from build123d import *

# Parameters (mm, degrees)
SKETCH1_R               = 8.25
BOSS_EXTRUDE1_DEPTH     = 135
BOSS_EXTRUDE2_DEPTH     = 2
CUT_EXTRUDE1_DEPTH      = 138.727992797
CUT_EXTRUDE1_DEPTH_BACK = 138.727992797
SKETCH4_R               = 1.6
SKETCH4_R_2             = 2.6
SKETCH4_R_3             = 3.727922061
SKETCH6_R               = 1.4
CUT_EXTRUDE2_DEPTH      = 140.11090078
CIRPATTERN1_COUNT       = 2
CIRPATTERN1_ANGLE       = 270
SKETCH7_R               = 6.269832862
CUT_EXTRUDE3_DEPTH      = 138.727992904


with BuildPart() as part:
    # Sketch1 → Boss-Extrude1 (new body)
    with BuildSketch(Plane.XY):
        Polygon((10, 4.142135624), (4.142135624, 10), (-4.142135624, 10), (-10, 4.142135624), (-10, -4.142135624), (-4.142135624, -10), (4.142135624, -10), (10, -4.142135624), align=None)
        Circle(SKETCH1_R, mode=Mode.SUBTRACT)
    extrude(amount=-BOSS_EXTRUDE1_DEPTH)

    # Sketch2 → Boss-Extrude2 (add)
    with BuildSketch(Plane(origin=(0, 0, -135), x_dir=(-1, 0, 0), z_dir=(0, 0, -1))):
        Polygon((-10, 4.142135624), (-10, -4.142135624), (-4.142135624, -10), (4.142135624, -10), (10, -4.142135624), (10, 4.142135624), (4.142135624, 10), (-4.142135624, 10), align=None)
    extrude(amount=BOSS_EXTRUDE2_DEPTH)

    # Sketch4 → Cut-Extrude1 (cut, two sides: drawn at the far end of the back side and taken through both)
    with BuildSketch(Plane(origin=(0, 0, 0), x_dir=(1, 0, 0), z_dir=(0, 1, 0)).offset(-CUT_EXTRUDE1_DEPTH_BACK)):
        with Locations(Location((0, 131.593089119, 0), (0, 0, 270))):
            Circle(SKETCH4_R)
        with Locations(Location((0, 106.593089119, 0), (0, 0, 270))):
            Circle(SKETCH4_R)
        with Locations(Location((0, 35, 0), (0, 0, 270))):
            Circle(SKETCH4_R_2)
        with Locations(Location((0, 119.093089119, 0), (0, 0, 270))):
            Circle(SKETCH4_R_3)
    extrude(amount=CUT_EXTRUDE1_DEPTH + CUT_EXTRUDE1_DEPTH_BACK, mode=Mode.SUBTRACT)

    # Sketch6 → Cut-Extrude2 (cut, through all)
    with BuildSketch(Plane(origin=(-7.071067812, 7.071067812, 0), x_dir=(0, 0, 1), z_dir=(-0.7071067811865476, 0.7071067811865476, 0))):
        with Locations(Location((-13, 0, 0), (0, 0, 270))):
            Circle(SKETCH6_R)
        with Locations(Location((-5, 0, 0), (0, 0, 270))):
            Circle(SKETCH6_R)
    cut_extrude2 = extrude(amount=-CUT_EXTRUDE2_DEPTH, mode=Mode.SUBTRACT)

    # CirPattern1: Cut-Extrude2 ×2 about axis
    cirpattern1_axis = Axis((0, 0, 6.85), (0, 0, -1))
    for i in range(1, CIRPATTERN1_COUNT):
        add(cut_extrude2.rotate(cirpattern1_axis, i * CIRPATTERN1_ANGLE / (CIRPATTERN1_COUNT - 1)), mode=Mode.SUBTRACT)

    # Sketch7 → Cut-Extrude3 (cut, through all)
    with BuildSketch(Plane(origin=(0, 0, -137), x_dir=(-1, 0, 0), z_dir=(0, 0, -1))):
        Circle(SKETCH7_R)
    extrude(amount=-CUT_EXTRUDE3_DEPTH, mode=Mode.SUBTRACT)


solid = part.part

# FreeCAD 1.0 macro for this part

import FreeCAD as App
import Part
import Sketcher

doc = App.newDocument("Part")
params = doc.addObject("Spreadsheet::Sheet", "Params")
for row, (alias, value) in enumerate([
    ("sketch1_diameter", "16.5 mm"),
    ("pad1_length", "135 mm"),
    ("pad2_length", "2 mm"),
    ("sketch3_diameter", "3.2 mm"),
    ("sketch3_diameter2", "5.2 mm"),
    ("sketch4_diameter", "2.8 mm"),
], start=1):
    params.set(f"A{row}", alias)
    params.set(f"B{row}", "=" + value)
    params.setAlias(f"B{row}", alias)

body = doc.addObject("PartDesign::Body", "Body")

sketch1 = body.newObject("Sketcher::SketchObject", "Sketch")
sketch1.AttachmentSupport = (doc.getObject("XY_Plane"), [""])
sketch1.MapMode = "FlatFace"
sketch1.addGeometry([
    Part.LineSegment(App.Vector(10, 4, 0), App.Vector(4, 10, 0)),
    Part.LineSegment(App.Vector(4, 10, 0), App.Vector(-4, 10, 0)),
    Part.LineSegment(App.Vector(-4, 10, 0), App.Vector(-10, 4, 0)),
    Part.LineSegment(App.Vector(-10, 4, 0), App.Vector(-10, -4, 0)),
    Part.LineSegment(App.Vector(-10, -4, 0), App.Vector(-4, -10, 0)),
    Part.LineSegment(App.Vector(-4, -10, 0), App.Vector(4, -10, 0)),
    Part.LineSegment(App.Vector(4, -10, 0), App.Vector(10, -4, 0)),
    Part.LineSegment(App.Vector(10, -4, 0), App.Vector(10, 4, 0)),
    Part.Circle(App.Vector(0, 0, 0), App.Vector(0, 0, 1), 8),
], False)
sketch1.addConstraint([
    Sketcher.Constraint("Coincident", 0, 2, 1, 1),
    Sketcher.Constraint("Coincident", 1, 2, 2, 1),
    Sketcher.Constraint("Coincident", 2, 2, 3, 1),
    Sketcher.Constraint("Coincident", 3, 2, 4, 1),
    Sketcher.Constraint("Coincident", 4, 2, 5, 1),
    Sketcher.Constraint("Coincident", 5, 2, 6, 1),
    Sketcher.Constraint("Coincident", 6, 2, 7, 1),
    Sketcher.Constraint("Coincident", 7, 2, 0, 1),
    Sketcher.Constraint("Horizontal", 1),
    Sketcher.Constraint("Vertical", 3),
    Sketcher.Constraint("Horizontal", 5),
    Sketcher.Constraint("Vertical", 7),
    Sketcher.Constraint("Coincident", 8, 3, -1, 1),
    Sketcher.Constraint("Symmetric", 0, 2, 4, 2, -1, 1),
    Sketcher.Constraint("Symmetric", 2, 2, 6, 2, -1, 1),
    Sketcher.Constraint("Perpendicular", 0, 2),
    Sketcher.Constraint("Perpendicular", 2, 4),
    Sketcher.Constraint("Perpendicular", 4, 6),
    Sketcher.Constraint("Horizontal", 3, 2, 6, 2),
    Sketcher.Constraint("Vertical", 1, 2, 4, 2),
    Sketcher.Constraint("Equal", 5, 3),
    Sketcher.Constraint("Diameter", 8, 16.5),
    Sketcher.Constraint("DistanceY", -1, 1, 0, 2, 10.0),
    Sketcher.Constraint("DistanceX", 1, 2, 1, 1, 8.284271),
])
sketch1.setExpression("Constraints[21]", "Params.sketch1_diameter")
pad1 = body.newObject("PartDesign::Pad", "Pad")
pad1.Profile = sketch1
pad1.setExpression("Length", "Params.pad1_length")
pad1.Reversed = True

sketch2 = body.newObject("Sketcher::SketchObject", "Sketch001")
sketch2.AttachmentSupport = (doc.getObject("XY_Plane"), [""])
sketch2.MapMode = "FlatFace"
sketch2.AttachmentOffset = App.Placement(App.Vector(0, 0, -135), App.Rotation())
sketch2.addGeometry([
    Part.LineSegment(App.Vector(10, 4, 0), App.Vector(10, -4, 0)),
    Part.LineSegment(App.Vector(10, -4, 0), App.Vector(4, -10, 0)),
    Part.LineSegment(App.Vector(4, -10, 0), App.Vector(-4, -10, 0)),
    Part.LineSegment(App.Vector(-4, -10, 0), App.Vector(-10, -4, 0)),
    Part.LineSegment(App.Vector(-10, -4, 0), App.Vector(-10, 4, 0)),
    Part.LineSegment(App.Vector(-10, 4, 0), App.Vector(-4, 10, 0)),
    Part.LineSegment(App.Vector(-4, 10, 0), App.Vector(4, 10, 0)),
    Part.LineSegment(App.Vector(4, 10, 0), App.Vector(10, 4, 0)),
], False)
sketch2.addConstraint([
    Sketcher.Constraint("Coincident", 0, 2, 1, 1),
    Sketcher.Constraint("Coincident", 1, 2, 2, 1),
    Sketcher.Constraint("Coincident", 2, 2, 3, 1),
    Sketcher.Constraint("Coincident", 3, 2, 4, 1),
    Sketcher.Constraint("Coincident", 4, 2, 5, 1),
    Sketcher.Constraint("Coincident", 5, 2, 6, 1),
    Sketcher.Constraint("Coincident", 6, 2, 7, 1),
    Sketcher.Constraint("Coincident", 7, 2, 0, 1),
    Sketcher.Constraint("Vertical", 0),
    Sketcher.Constraint("Horizontal", 2),
    Sketcher.Constraint("Vertical", 4),
    Sketcher.Constraint("Horizontal", 6),
    Sketcher.Constraint("Symmetric", 0, 2, 4, 2, -1, 1),
    Sketcher.Constraint("Symmetric", 1, 2, 5, 2, -1, 1),
    Sketcher.Constraint("Perpendicular", 1, 3),
    Sketcher.Constraint("Perpendicular", 5, 7),
    Sketcher.Constraint("Horizontal", 0, 2, 3, 2),
    Sketcher.Constraint("Horizontal", 4, 2, 7, 2),
    Sketcher.Constraint("Vertical", 2, 2, 5, 2),
    Sketcher.Constraint("Equal", 6, 0),
    Sketcher.Constraint("DistanceX", -1, 1, 0, 2, 10.0),
    Sketcher.Constraint("DistanceX", 2, 2, 2, 1, 8.284271),
])
pad2 = body.newObject("PartDesign::Pad", "Pad001")
pad2.Profile = sketch2
pad2.setExpression("Length", "Params.pad2_length")
pad2.Reversed = True

sketch3 = body.newObject("Sketcher::SketchObject", "Sketch002")
sketch3.AttachmentSupport = (doc.getObject("XZ_Plane"), [""])
sketch3.MapMode = "FlatFace"
sketch3.addGeometry([
    Part.Circle(App.Vector(0, -131.6, 0), App.Vector(0, 0, 1), 1.6),
    Part.Circle(App.Vector(0, -106.6, 0), App.Vector(0, 0, 1), 1.6),
    Part.Circle(App.Vector(0, -35, 0), App.Vector(0, 0, 1), 2.6),
    Part.Circle(App.Vector(0, -119.1, 0), App.Vector(0, 0, 1), 3.7),
], False)
sketch3.addConstraint([
    Sketcher.Constraint("Equal", 0, 1),
    Sketcher.Constraint("PointOnObject", 0, 3, -2),
    Sketcher.Constraint("PointOnObject", 1, 3, -2),
    Sketcher.Constraint("PointOnObject", 2, 3, -2),
    Sketcher.Constraint("PointOnObject", 3, 3, -2),
    Sketcher.Constraint("Diameter", 0, 3.2),
    Sketcher.Constraint("Diameter", 2, 5.2),
    Sketcher.Constraint("DistanceY", 2, 3, -1, 1, 35.0),
    Sketcher.Constraint("DistanceY", 0, 3, 1, 3, 25.0),
    Sketcher.Constraint("DistanceY", 3, 3, 1, 3, 12.5),
    Sketcher.Constraint("Diameter", 3, 7.455844),
    Sketcher.Constraint("DistanceY", 0, 3, -1, 1, 131.593089),
])
sketch3.setExpression("Constraints[5]", "Params.sketch3_diameter")
sketch3.setExpression("Constraints[6]", "Params.sketch3_diameter2")
pocket1 = body.newObject("PartDesign::Pocket", "Pocket")
pocket1.Profile = sketch3
pocket1.Type = "ThroughAll"
pocket1.Midplane = True

sketch4 = body.newObject("Sketcher::SketchObject", "Sketch003")
sketch4.Placement = App.Placement(App.Vector(-7.071068, 7.071068, 0), App.Rotation(App.Vector(0, 0, 1), App.Vector(0.707106781, 0.707106781, 0), App.Vector(-0.707106781, 0.707106781, 0), "ZXY"))
sketch4.addGeometry([
    Part.Circle(App.Vector(-13, 0, 0), App.Vector(0, 0, 1), 1.4),
    Part.Circle(App.Vector(-5, 0, 0), App.Vector(0, 0, 1), 1.4),
], False)
sketch4.addConstraint([
    Sketcher.Constraint("Equal", 0, 1),
    Sketcher.Constraint("PointOnObject", 0, 3, -1),
    Sketcher.Constraint("PointOnObject", 1, 3, -1),
    Sketcher.Constraint("Diameter", 0, 2.8),
    Sketcher.Constraint("DistanceX", 0, 3, -1, 1, 13.0),
    Sketcher.Constraint("DistanceX", 1, 3, -1, 1, 5.0),
])
sketch4.setExpression("Constraints[3]", "Params.sketch4_diameter")
pocket2 = body.newObject("PartDesign::Pocket", "Pocket001")
pocket2.Profile = sketch4
pocket2.Type = "ThroughAll"
doc.recompute()

polarpattern = body.newObject("PartDesign::PolarPattern", "PolarPattern")
polarpattern.Originals = [pocket2]
polarpattern.Axis = (doc.getObject("Z_Axis"), [""])
polarpattern.Angle = 270
polarpattern.Occurrences = 2
polarpattern.Reversed = True
body.Tip = polarpattern

sketch5 = body.newObject("Sketcher::SketchObject", "Sketch004")
sketch5.AttachmentSupport = (doc.getObject("XY_Plane"), [""])
sketch5.MapMode = "FlatFace"
sketch5.AttachmentOffset = App.Placement(App.Vector(0, 0, -137), App.Rotation())
sketch5.addGeometry(Part.Circle(App.Vector(0, 0, 0), App.Vector(0, 0, 1), 6), False)
sketch5.addConstraint([
    Sketcher.Constraint("Coincident", 0, 3, -1, 1),
    Sketcher.Constraint("Diameter", 0, 12.539666),
])
pocket3 = body.newObject("PartDesign::Pocket", "Pocket002")
pocket3.Profile = sketch5
pocket3.Type = "ThroughAll"
pocket3.Reversed = True

doc.recompute()
